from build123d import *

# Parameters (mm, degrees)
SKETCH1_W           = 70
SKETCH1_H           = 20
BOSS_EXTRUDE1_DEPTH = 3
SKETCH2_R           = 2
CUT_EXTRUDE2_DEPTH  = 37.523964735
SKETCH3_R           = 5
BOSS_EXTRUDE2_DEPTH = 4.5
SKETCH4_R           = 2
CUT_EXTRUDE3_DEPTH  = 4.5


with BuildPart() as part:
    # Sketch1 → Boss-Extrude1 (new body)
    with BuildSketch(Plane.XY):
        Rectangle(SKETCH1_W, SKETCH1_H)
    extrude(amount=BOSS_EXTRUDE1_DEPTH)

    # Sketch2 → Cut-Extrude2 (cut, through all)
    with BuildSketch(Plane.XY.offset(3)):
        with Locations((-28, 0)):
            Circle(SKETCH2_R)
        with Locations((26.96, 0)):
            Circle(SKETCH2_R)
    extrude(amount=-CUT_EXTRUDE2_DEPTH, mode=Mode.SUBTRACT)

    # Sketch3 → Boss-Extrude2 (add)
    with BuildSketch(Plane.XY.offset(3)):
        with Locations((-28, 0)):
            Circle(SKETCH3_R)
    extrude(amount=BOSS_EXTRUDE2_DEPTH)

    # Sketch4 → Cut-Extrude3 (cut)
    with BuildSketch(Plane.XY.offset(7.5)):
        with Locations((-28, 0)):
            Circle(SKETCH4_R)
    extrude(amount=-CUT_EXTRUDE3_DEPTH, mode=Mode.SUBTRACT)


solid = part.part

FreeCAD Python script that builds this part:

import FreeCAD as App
import Part
import Sketcher
from FreeCAD import Vector

doc = App.newDocument("Part")
body = doc.addObject("PartDesign::Body", "Body")

# Sketch on XY plane
sketch1 = body.newObject("Sketcher::SketchObject", "Sketch")
sketch1.AttachmentSupport = (doc.getObject("XY_Plane"), [""])
sketch1.MapMode = "FlatFace"
sketch1.addGeometry(Part.LineSegment(Vector(-35, 10, 0), Vector(-35, -10, 0)), False)
sketch1.addGeometry(Part.LineSegment(Vector(-35, -10, 0), Vector(35, -10, 0)), False)
sketch1.addGeometry(Part.LineSegment(Vector(35, -10, 0), Vector(35, 10, 0)), False)
sketch1.addGeometry(Part.LineSegment(Vector(35, 10, 0), Vector(-35, 10, 0)), False)
sketch1.addConstraint(Sketcher.Constraint("Coincident", 0, 2, 1, 1))
sketch1.addConstraint(Sketcher.Constraint("Coincident", 1, 2, 2, 1))
sketch1.addConstraint(Sketcher.Constraint("Coincident", 2, 2, 3, 1))
sketch1.addConstraint(Sketcher.Constraint("Coincident", 3, 2, 0, 1))
sketch1.addConstraint(Sketcher.Constraint("Vertical", 0))
sketch1.addConstraint(Sketcher.Constraint("Horizontal", 1))
sketch1.addConstraint(Sketcher.Constraint("Vertical", 2))
sketch1.addConstraint(Sketcher.Constraint("Horizontal", 3))
sketch1.addConstraint(Sketcher.Constraint("Symmetric", 0, 2, 2, 2, -1, 1))
sketch1.addConstraint(Sketcher.Constraint("DistanceX", 1, 1, 1, 2, 70.0))
sketch1.addConstraint(Sketcher.Constraint("DistanceY", 0, 2, 0, 1, 20.0))
pad1 = body.newObject("PartDesign::Pad", "Pad")
pad1.Profile = sketch1
pad1.Length = 3

# Sketch on XY plane
sketch2 = body.newObject("Sketcher::SketchObject", "Sketch001")
sketch2.AttachmentSupport = (doc.getObject("XY_Plane"), [""])
sketch2.MapMode = "FlatFace"
sketch2.AttachmentOffset = App.Placement(Vector(0, 0, 3), App.Rotation())
sketch2.addGeometry(Part.Circle(Vector(-28, 0, 0), Vector(0, 0, 1), 2), False)
sketch2.addGeometry(Part.Circle(Vector(26.96, 0, 0), Vector(0, 0, 1), 2), False)
sketch2.addConstraint(Sketcher.Constraint("Equal", 0, 1))
sketch2.addConstraint(Sketcher.Constraint("PointOnObject", 0, 3, -1))
sketch2.addConstraint(Sketcher.Constraint("PointOnObject", 1, 3, -1))
sketch2.addConstraint(Sketcher.Constraint("Diameter", 0, 4.0))
sketch2.addConstraint(Sketcher.Constraint("DistanceX", 0, 3, -1, 1, 28.0))
sketch2.addConstraint(Sketcher.Constraint("DistanceX", -1, 1, 1, 3, 26.96))
pocket1 = body.newObject("PartDesign::Pocket", "Pocket")
pocket1.Profile = sketch2
pocket1.Type = "ThroughAll"

# Sketch on XY plane
sketch3 = body.newObject("Sketcher::SketchObject", "Sketch002")
sketch3.AttachmentSupport = (doc.getObject("XY_Plane"), [""])
sketch3.MapMode = "FlatFace"
sketch3.AttachmentOffset = App.Placement(Vector(0, 0, 3), App.Rotation())
sketch3.addGeometry(Part.Circle(Vector(-28, 0, 0), Vector(0, 0, 1), 5), False)
sketch3.addConstraint(Sketcher.Constraint("PointOnObject", 0, 3, -1))
sketch3.addConstraint(Sketcher.Constraint("Diameter", 0, 10.0))
sketch3.addConstraint(Sketcher.Constraint("DistanceX", 0, 3, -1, 1, 28.0))
pad2 = body.newObject("PartDesign::Pad", "Pad001")
pad2.Profile = sketch3
pad2.Length = 4.5

# Sketch on XY plane
sketch4 = body.newObject("Sketcher::SketchObject", "Sketch003")
sketch4.AttachmentSupport = (doc.getObject("XY_Plane"), [""])
sketch4.MapMode = "FlatFace"
sketch4.AttachmentOffset = App.Placement(Vector(0, 0, 7.5), App.Rotation())
sketch4.addGeometry(Part.Circle(Vector(-28, 0, 0), Vector(0, 0, 1), 2), False)
sketch4.addConstraint(Sketcher.Constraint("PointOnObject", 0, 3, -1))
sketch4.addConstraint(Sketcher.Constraint("Diameter", 0, 4.0))
sketch4.addConstraint(Sketcher.Constraint("DistanceX", 0, 3, -1, 1, 28.0))
pocket2 = body.newObject("PartDesign::Pocket", "Pocket001")
pocket2.Profile = sketch4
pocket2.Length = 4.5

doc.recompute()
